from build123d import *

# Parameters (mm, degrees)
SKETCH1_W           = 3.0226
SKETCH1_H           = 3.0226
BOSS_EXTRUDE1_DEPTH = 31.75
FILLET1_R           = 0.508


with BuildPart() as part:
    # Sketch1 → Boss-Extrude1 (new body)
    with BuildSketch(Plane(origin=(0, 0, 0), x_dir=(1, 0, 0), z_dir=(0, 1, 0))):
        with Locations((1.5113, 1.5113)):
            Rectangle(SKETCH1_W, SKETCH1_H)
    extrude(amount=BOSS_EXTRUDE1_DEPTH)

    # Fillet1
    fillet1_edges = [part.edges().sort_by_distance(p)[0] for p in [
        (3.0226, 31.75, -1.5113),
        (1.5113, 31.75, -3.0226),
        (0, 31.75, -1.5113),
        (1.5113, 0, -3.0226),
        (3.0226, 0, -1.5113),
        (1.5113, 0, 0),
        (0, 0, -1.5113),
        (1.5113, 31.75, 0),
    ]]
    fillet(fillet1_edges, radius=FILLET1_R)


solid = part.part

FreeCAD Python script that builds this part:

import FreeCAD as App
import Part
import Sketcher
from FreeCAD import Vector
Q = App.Units.Quantity


def edges_at(feature, points):
    """Names of the edges that pass closest to the given points."""
    edges = feature.Shape.Edges
    near = lambda p: min(range(len(edges)), key=lambda i: edges[i].distToShape(Part.Vertex(*p))[0])
    return sorted({f"Edge{near(p) + 1}" for p in points})

doc = App.newDocument("Part")
body = doc.addObject("PartDesign::Body", "Body")

# Sketch on XZ plane
sketch1 = doc.addObject("Sketcher::SketchObject", "Sketch")
body.addObject(sketch1)
sketch1.AttachmentSupport = (doc.XZ_Plane, [""])
sketch1.MapMode = "FlatFace"
sketch1.addGeometry([
    Part.LineSegment(Vector(0, -3, 0), Vector(0, 0, 0)),
    Part.LineSegment(Vector(0, 0, 0), Vector(3, 0, 0)),
    Part.LineSegment(Vector(3, 0, 0), Vector(3, -3, 0)),
    Part.LineSegment(Vector(3, -3, 0), Vector(0, -3, 0)),
], False)
sketch1.addConstraint([
    Sketcher.Constraint("Coincident", 0, 2, 1, 1),
    Sketcher.Constraint("Coincident", 1, 2, 2, 1),
    Sketcher.Constraint("Coincident", 2, 2, 3, 1),
    Sketcher.Constraint("Coincident", 3, 2, 0, 1),
    Sketcher.Constraint("Vertical", 0),
    Sketcher.Constraint("Horizontal", 1),
    Sketcher.Constraint("Vertical", 2),
    Sketcher.Constraint("Horizontal", 3),
    Sketcher.Constraint("Coincident", 0, 2, -1, 1),
    Sketcher.Constraint("Equal", 3, 0),
    Sketcher.Constraint("DistanceX", 1, 1, 1, 2, Q("0.119 in")),
])
pad1 = doc.addObject("PartDesign::Pad", "Pad")
body.addObject(pad1)
pad1.Profile = sketch1
pad1.Length = Q("1.25 in")
pad1.Reversed = True
doc.recompute()

fillet = doc.addObject("PartDesign::Fillet", "Fillet")
body.addObject(fillet)
fillet.Base = (pad1, edges_at(pad1, [
    (3.023, 31.75, -1.511),
    (1.511, 31.75, -3.023),
    (0, 31.75, -1.511),
    (1.511, 0, -3.023),
    (3.023, 0, -1.511),
    (1.511, 0, 0),
    (0, 0, -1.511),
    (1.511, 31.75, 0),
]))
fillet.Radius = Q("0.02 in")

doc.recompute()
